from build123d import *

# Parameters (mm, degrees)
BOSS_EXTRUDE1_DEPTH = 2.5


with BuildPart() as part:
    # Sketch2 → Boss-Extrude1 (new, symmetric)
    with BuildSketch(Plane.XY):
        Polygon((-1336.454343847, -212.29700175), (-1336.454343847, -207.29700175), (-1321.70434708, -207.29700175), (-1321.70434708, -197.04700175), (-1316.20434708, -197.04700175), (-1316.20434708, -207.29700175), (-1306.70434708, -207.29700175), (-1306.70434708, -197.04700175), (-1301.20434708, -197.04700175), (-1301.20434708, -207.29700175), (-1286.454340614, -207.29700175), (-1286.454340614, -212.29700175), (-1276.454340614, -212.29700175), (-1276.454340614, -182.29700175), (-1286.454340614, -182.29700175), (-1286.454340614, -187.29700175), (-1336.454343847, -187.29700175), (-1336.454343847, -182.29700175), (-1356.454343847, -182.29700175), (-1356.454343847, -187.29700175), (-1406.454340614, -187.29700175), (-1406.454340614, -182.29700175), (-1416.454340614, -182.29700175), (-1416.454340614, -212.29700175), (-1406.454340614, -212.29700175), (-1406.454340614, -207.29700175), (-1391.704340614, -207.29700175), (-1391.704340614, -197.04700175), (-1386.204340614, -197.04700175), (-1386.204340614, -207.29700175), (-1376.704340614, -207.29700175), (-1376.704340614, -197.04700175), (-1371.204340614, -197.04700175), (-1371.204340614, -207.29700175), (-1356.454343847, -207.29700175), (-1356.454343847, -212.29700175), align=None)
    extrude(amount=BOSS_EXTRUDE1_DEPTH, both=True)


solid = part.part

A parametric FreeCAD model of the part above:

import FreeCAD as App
import Part
import Sketcher
from FreeCAD import Vector
Q = App.Units.Quantity


def add_polygon(sketch, points):
    """Adds a closed chain of lines whose ends are joined by coincident constraints."""
    first, n = sketch.GeometryCount, len(points)
    for a, b in zip(points, points[1:] + points[:1]):
        sketch.addGeometry(Part.LineSegment(App.Vector(*a, 0), App.Vector(*b, 0)), False)
    for i in range(n):
        sketch.addConstraint(Sketcher.Constraint("Coincident", first + i, 2, first + (i + 1) % n, 1))

doc = App.newDocument("Part")
body = doc.addObject("PartDesign::Body", "Body")

sketch1 = body.newObject("Sketcher::SketchObject", "Sketch")
sketch1.AttachmentSupport = (doc.getObject("XY_Plane"), [""])
sketch1.MapMode = "FlatFace"
add_polygon(sketch1, [(-1336, -212), (-1336, -207), (-1322, -207), (-1322, -197), (-1316, -197), (-1316, -207), (-1307, -207), (-1307, -197), (-1301, -197), (-1301, -207), (-1286, -207), (-1286, -212), (-1276, -212), (-1276, -182), (-1286, -182), (-1286, -187), (-1336, -187), (-1336, -182), (-1356, -182), (-1356, -187), (-1406, -187), (-1406, -182), (-1416, -182), (-1416, -212), (-1406, -212), (-1406, -207), (-1392, -207), (-1392, -197), (-1386, -197), (-1386, -207), (-1377, -207), (-1377, -197), (-1371, -197), (-1371, -207), (-1356, -207), (-1356, -212)])
sketch1.addConstraint(Sketcher.Constraint("Vertical", 0))
sketch1.addConstraint(Sketcher.Constraint("Horizontal", 1))
sketch1.addConstraint(Sketcher.Constraint("Vertical", 2))
sketch1.addConstraint(Sketcher.Constraint("Horizontal", 3))
sketch1.addConstraint(Sketcher.Constraint("Vertical", 4))
sketch1.addConstraint(Sketcher.Constraint("Horizontal", 5))
sketch1.addConstraint(Sketcher.Constraint("Vertical", 6))
sketch1.addConstraint(Sketcher.Constraint("Horizontal", 7))
sketch1.addConstraint(Sketcher.Constraint("Vertical", 8))
sketch1.addConstraint(Sketcher.Constraint("Horizontal", 9))
sketch1.addConstraint(Sketcher.Constraint("Vertical", 10))
sketch1.addConstraint(Sketcher.Constraint("Horizontal", 11))
sketch1.addConstraint(Sketcher.Constraint("Vertical", 12))
sketch1.addConstraint(Sketcher.Constraint("Horizontal", 13))
sketch1.addConstraint(Sketcher.Constraint("Vertical", 14))
sketch1.addConstraint(Sketcher.Constraint("Horizontal", 15))
sketch1.addConstraint(Sketcher.Constraint("Vertical", 16))
sketch1.addConstraint(Sketcher.Constraint("Horizontal", 17))
sketch1.addConstraint(Sketcher.Constraint("Vertical", 18))
sketch1.addConstraint(Sketcher.Constraint("Horizontal", 19))
sketch1.addConstraint(Sketcher.Constraint("Vertical", 20))
sketch1.addConstraint(Sketcher.Constraint("Horizontal", 21))
sketch1.addConstraint(Sketcher.Constraint("Vertical", 22))
sketch1.addConstraint(Sketcher.Constraint("Horizontal", 23))
sketch1.addConstraint(Sketcher.Constraint("Vertical", 24))
sketch1.addConstraint(Sketcher.Constraint("Horizontal", 25))
sketch1.addConstraint(Sketcher.Constraint("Vertical", 26))
sketch1.addConstraint(Sketcher.Constraint("Horizontal", 27))
sketch1.addConstraint(Sketcher.Constraint("Vertical", 28))
sketch1.addConstraint(Sketcher.Constraint("Horizontal", 29))
sketch1.addConstraint(Sketcher.Constraint("Vertical", 30))
sketch1.addConstraint(Sketcher.Constraint("Horizontal", 31))
sketch1.addConstraint(Sketcher.Constraint("Vertical", 32))
sketch1.addConstraint(Sketcher.Constraint("Horizontal", 33))
sketch1.addConstraint(Sketcher.Constraint("Vertical", 34))
sketch1.addConstraint(Sketcher.Constraint("Horizontal", 35))
sketch1.addConstraint(Sketcher.Constraint("Horizontal", 1, 2, 4, 2))
sketch1.addConstraint(Sketcher.Constraint("Horizontal", 3, 2, 6, 2))
sketch1.addConstraint(Sketcher.Constraint("Horizontal", 5, 2, 8, 2))
sketch1.addConstraint(Sketcher.Constraint("Horizontal", 13, 2, 16, 2))
sketch1.addConstraint(Sketcher.Constraint("Horizontal", 15, 2, 18, 2))
sketch1.addConstraint(Sketcher.Constraint("Horizontal", 17, 2, 20, 2))
sketch1.addConstraint(Sketcher.Constraint("Horizontal", 11, 2, 22, 2))
sketch1.addConstraint(Sketcher.Constraint("Horizontal", 9, 2, 24, 2))
sketch1.addConstraint(Sketcher.Constraint("Horizontal", 7, 2, 26, 2))
sketch1.addConstraint(Sketcher.Constraint("Horizontal", 25, 2, 28, 2))
sketch1.addConstraint(Sketcher.Constraint("Horizontal", 27, 2, 30, 2))
sketch1.addConstraint(Sketcher.Constraint("Horizontal", 29, 2, 32, 2))
sketch1.addConstraint(Sketcher.Constraint("Horizontal", 23, 2, 34, 2))
sketch1.addConstraint(Sketcher.Constraint("Vertical", 10, 2, 13, 2))
sketch1.addConstraint(Sketcher.Constraint("Vertical", 0, 2, 15, 2))
sketch1.addConstraint(Sketcher.Constraint("Vertical", 20, 2, 23, 2))
sketch1.addConstraint(Sketcher.Constraint("Vertical", 18, 2, 33, 2))
sketch1.addConstraint(Sketcher.Constraint("Equal", 3, 7))
sketch1.addConstraint(Sketcher.Constraint("Equal", 13, 21))
sketch1.addConstraint(Sketcher.Constraint("Equal", 7, 27))
sketch1.addConstraint(Sketcher.Constraint("Equal", 5, 29))
sketch1.addConstraint(Sketcher.Constraint("Equal", 27, 31))
sketch1.addConstraint(Sketcher.Constraint("Equal", 1, 33))
sketch1.addConstraint(Sketcher.Constraint("Equal", 10, 14))
sketch1.addConstraint(Sketcher.Constraint("DistanceX", 11, 1, 11, 2, Q("10 mm")))
sketch1.addConstraint(Sketcher.Constraint("DistanceX", 17, 2, 17, 1, Q("20 mm")))
sketch1.addConstraint(Sketcher.Constraint("DistanceY", 0, 1, 0, 2, Q("5 mm")))
sketch1.addConstraint(Sketcher.Constraint("DistanceY", 12, 1, 12, 2, Q("30 mm")))
sketch1.addConstraint(Sketcher.Constraint("DistanceX", 3, 1, 3, 2, Q("5.5 mm")))
sketch1.addConstraint(Sketcher.Constraint("DistanceX", 5, 1, 5, 2, Q("9.5 mm")))
sketch1.addConstraint(Sketcher.Constraint("DistanceX", 25, 1, 25, 2, Q("14.75 mm")))
sketch1.addConstraint(Sketcher.Constraint("DistanceY", 2, 1, 2, 2, Q("10.25 mm")))
sketch1.addConstraint(Sketcher.Constraint("DistanceY", 0, 2, -1, 1, Q("207.297002 mm")))
sketch1.addConstraint(Sketcher.Constraint("DistanceX", 1, 1, 1, 2, Q("14.749997 mm")))
sketch1.addConstraint(Sketcher.Constraint("DistanceX", 9, 1, 9, 2, Q("14.750006 mm")))
sketch1.addConstraint(Sketcher.Constraint("DistanceX", 9, 2, -1, 1, Q("1286.454341 mm")))
pad1 = body.newObject("PartDesign::Pad", "Pad")
pad1.Profile = sketch1
pad1.Length = 5
pad1.Midplane = True

doc.recompute()
